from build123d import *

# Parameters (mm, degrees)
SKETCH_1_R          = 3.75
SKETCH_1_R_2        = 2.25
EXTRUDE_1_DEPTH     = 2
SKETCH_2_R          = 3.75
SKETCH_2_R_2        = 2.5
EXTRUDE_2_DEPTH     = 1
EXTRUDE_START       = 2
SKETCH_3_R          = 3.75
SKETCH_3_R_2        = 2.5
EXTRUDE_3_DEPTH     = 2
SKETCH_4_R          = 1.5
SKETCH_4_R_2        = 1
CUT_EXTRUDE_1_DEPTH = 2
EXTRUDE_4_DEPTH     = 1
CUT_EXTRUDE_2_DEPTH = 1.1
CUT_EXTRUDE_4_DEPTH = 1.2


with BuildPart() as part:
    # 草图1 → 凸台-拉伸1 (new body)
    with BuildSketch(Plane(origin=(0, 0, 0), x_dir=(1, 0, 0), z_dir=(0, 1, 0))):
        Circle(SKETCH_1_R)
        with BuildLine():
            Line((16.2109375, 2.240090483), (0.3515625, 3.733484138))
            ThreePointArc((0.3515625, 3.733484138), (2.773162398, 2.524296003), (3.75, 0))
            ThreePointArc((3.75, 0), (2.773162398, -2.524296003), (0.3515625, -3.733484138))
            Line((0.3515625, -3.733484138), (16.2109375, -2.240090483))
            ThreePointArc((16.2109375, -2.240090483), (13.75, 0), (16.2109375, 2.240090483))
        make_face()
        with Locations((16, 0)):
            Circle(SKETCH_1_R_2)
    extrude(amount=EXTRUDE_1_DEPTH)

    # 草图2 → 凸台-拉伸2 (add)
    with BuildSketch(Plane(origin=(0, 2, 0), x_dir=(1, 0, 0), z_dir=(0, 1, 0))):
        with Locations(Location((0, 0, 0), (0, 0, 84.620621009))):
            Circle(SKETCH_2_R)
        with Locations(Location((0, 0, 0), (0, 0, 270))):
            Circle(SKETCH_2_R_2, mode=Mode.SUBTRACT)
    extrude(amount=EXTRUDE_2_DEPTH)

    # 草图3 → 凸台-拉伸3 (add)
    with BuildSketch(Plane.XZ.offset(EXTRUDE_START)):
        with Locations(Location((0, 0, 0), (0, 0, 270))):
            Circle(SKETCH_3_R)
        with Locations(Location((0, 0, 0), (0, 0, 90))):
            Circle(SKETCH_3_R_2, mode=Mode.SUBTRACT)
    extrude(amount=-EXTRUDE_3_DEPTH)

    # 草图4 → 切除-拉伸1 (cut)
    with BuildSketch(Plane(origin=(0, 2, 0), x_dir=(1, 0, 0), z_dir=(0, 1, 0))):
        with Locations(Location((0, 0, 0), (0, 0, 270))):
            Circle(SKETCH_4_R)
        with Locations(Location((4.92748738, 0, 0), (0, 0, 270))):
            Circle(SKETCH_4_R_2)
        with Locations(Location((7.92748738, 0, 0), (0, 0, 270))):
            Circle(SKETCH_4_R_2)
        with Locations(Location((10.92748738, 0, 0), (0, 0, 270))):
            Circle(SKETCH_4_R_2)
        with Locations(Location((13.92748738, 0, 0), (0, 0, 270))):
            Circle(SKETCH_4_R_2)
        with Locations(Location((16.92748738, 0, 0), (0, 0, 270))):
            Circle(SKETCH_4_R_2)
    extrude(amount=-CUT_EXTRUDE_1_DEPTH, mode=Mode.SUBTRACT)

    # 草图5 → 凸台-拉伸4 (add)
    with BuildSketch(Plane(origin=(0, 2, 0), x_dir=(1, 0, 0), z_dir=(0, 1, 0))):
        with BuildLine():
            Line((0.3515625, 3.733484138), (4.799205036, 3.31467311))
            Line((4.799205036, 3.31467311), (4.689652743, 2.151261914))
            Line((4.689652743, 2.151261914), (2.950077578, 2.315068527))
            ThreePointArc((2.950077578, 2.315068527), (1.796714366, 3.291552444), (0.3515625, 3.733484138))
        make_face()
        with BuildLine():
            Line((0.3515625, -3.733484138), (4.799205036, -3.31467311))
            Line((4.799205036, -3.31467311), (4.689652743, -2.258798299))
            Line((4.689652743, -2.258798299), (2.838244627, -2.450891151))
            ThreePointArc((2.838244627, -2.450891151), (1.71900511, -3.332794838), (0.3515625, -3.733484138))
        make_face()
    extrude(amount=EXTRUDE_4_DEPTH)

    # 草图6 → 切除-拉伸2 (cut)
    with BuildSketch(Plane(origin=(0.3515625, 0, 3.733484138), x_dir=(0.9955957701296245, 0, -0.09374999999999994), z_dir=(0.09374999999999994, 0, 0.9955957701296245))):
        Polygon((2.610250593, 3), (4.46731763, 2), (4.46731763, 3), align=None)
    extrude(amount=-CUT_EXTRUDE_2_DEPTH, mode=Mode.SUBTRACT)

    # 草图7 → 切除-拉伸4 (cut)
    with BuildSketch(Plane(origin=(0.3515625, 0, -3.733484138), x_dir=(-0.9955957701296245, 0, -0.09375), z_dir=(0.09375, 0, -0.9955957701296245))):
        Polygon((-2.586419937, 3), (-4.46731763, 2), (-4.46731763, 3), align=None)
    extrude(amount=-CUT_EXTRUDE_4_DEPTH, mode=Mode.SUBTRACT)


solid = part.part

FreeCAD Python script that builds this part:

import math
import FreeCAD as App
import Part
import Sketcher

V = App.Vector

doc = App.newDocument("Part")
body = doc.addObject("PartDesign::Body", "Body")

sketch1 = doc.addObject("Sketcher::SketchObject", "Sketch")
body.addObject(sketch1)
sketch1.AttachmentSupport = (doc.XZ_Plane, [""])
sketch1.MapMode = "FlatFace"
sketch1.addGeometry([
    Part.ArcOfCircle(Part.Circle(V(0, 0, 0), V(0, 0, 1), 3.8), math.radians(85), math.radians(275)),
    Part.LineSegment(V(0.4, 3.7, 0), V(16.2, 2.2, 0)),
    Part.ArcOfCircle(Part.Circle(V(16, 0, 0), V(0, 0, 1), 2.2), math.radians(-85), math.radians(85)),
    Part.LineSegment(V(16.2, -2.2, 0), V(0.4, -3.7, 0)),
], False)
sketch1.addConstraint([
    Sketcher.Constraint("Tangent", 0, 1, 1, 1),
    Sketcher.Constraint("Tangent", 1, 2, 2, 2),
    Sketcher.Constraint("Tangent", 2, 1, 3, 1),
    Sketcher.Constraint("Tangent", 3, 2, 0, 2),
    Sketcher.Constraint("Coincident", 0, 3, -1, 1),
    Sketcher.Constraint("PointOnObject", 2, 3, -1),
    Sketcher.Constraint("Radius", 0, 3.75),
    Sketcher.Constraint("Radius", 2, 2.25),
    Sketcher.Constraint("DistanceX", -1, 1, 2, 3, 16.0),
])
pad1 = doc.addObject("PartDesign::Pad", "Pad")
body.addObject(pad1)
pad1.Profile = sketch1
pad1.Length = 2
pad1.Reversed = True

sketch2 = doc.addObject("Sketcher::SketchObject", "Sketch001")
body.addObject(sketch2)
sketch2.AttachmentSupport = (doc.XZ_Plane, [""])
sketch2.MapMode = "FlatFace"
sketch2.AttachmentOffset = App.Placement(V(0, 0, -2), App.Rotation())
sketch2.addGeometry([
    Part.Circle(V(0, 0, 0), V(0, 0, 1), 3.8),
    Part.Circle(V(0, 0, 0), V(0, 0, 1), 2.5),
], False)
sketch2.addConstraint([
    Sketcher.Constraint("Coincident", 0, 3, -1, 1),
    Sketcher.Constraint("Coincident", 1, 3, -1, 1),
    Sketcher.Constraint("Diameter", 1, 5.0),
    Sketcher.Constraint("Diameter", 0, 7.5),
])
pad2 = doc.addObject("PartDesign::Pad", "Pad001")
body.addObject(pad2)
pad2.Profile = sketch2
pad2.Length = 1
pad2.Reversed = True

sketch3 = doc.addObject("Sketcher::SketchObject", "Sketch002")
body.addObject(sketch3)
sketch3.AttachmentSupport = (doc.XZ_Plane, [""])
sketch3.MapMode = "FlatFace"
sketch3.AttachmentOffset = App.Placement(V(0, 0, 2), App.Rotation())
sketch3.addGeometry([
    Part.Circle(V(0, 0, 0), V(0, 0, 1), 3.8),
    Part.Circle(V(0, 0, 0), V(0, 0, 1), 2.5),
], False)
sketch3.addConstraint([
    Sketcher.Constraint("Coincident", 0, 3, -1, 1),
    Sketcher.Constraint("Coincident", 1, 3, -1, 1),
    Sketcher.Constraint("Diameter", 1, 5.0),
    Sketcher.Constraint("Diameter", 0, 7.5),
])
pad3 = doc.addObject("PartDesign::Pad", "Pad002")
body.addObject(pad3)
pad3.Profile = sketch3
pad3.Length = 2
pad3.Reversed = True

sketch4 = doc.addObject("Sketcher::SketchObject", "Sketch003")
body.addObject(sketch4)
sketch4.AttachmentSupport = (doc.XZ_Plane, [""])
sketch4.MapMode = "FlatFace"
sketch4.AttachmentOffset = App.Placement(V(0, 0, -2), App.Rotation())
sketch4.addGeometry([
    Part.Circle(V(0, 0, 0), V(0, 0, 1), 1.5),
    Part.Circle(V(4.9, 0, 0), V(0, 0, 1), 1),
    Part.Circle(V(7.9, 0, 0), V(0, 0, 1), 1),
    Part.Circle(V(10.9, 0, 0), V(0, 0, 1), 1),
    Part.Circle(V(13.9, 0, 0), V(0, 0, 1), 1),
    Part.Circle(V(16.9, 0, 0), V(0, 0, 1), 1),
], False)
sketch4.addConstraint([
    Sketcher.Constraint("Coincident", 0, 3, -1, 1),
    Sketcher.Constraint("Equal", 1, 2),
    Sketcher.Constraint("Equal", 2, 3),
    Sketcher.Constraint("Equal", 3, 4),
    Sketcher.Constraint("Equal", 4, 5),
    Sketcher.Constraint("PointOnObject", 1, 3, -1),
    Sketcher.Constraint("PointOnObject", 2, 3, -1),
    Sketcher.Constraint("PointOnObject", 3, 3, -1),
    Sketcher.Constraint("PointOnObject", 4, 3, -1),
    Sketcher.Constraint("PointOnObject", 5, 3, -1),
    Sketcher.Constraint("Diameter", 0, 3.0),
    Sketcher.Constraint("Diameter", 1, 2.0),
    Sketcher.Constraint("DistanceX", 1, 3, 2, 3, 3.0),
    Sketcher.Constraint("DistanceX", 2, 3, 3, 3, 3.0),
    Sketcher.Constraint("DistanceX", 3, 3, 4, 3, 3.0),
    Sketcher.Constraint("DistanceX", 4, 3, 5, 3, 3.0),
    Sketcher.Constraint("DistanceX", -1, 1, 1, 3, 4.927487),
])
pocket1 = doc.addObject("PartDesign::Pocket", "Pocket")
body.addObject(pocket1)
pocket1.Profile = sketch4
pocket1.Length = 2
pocket1.Reversed = True

sketch5 = doc.addObject("Sketcher::SketchObject", "Sketch004")
body.addObject(sketch5)
sketch5.AttachmentSupport = (doc.XZ_Plane, [""])
sketch5.MapMode = "FlatFace"
sketch5.AttachmentOffset = App.Placement(V(0, 0, -2), App.Rotation())
sketch5.addGeometry([
    Part.LineSegment(V(4.8, -3.3, 0), V(0.4, -3.7, 0)),
    Part.ArcOfCircle(Part.Circle(V(0, 0, 0), V(0, 0, 1), 3.7), math.radians(-85), math.radians(-38)),
    Part.LineSegment(V(3, -2.3, 0), V(4.7, -2.2, 0)),
    Part.LineSegment(V(4.7, -2.2, 0), V(4.8, -3.3, 0)),
    Part.LineSegment(V(0.4, 3.7, 0), V(4.8, 3.3, 0)),
    Part.LineSegment(V(4.8, 3.3, 0), V(4.7, 2.3, 0)),
    Part.LineSegment(V(4.7, 2.3, 0), V(2.8, 2.5, 0)),
    Part.ArcOfCircle(Part.Circle(V(0, 0, 0), V(0, 0, 1), 3.7), math.radians(41), math.radians(85)),
], False)
sketch5.addConstraint([
    Sketcher.Constraint("Tangent", 0, 2, 1, 1),
    Sketcher.Constraint("Coincident", 1, 2, 2, 1),
    Sketcher.Constraint("Coincident", 2, 2, 3, 1),
    Sketcher.Constraint("Coincident", 3, 2, 0, 1),
    Sketcher.Constraint("Coincident", 4, 2, 5, 1),
    Sketcher.Constraint("Coincident", 5, 2, 6, 1),
    Sketcher.Constraint("Coincident", 6, 2, 7, 1),
    Sketcher.Constraint("Tangent", 7, 2, 4, 1),
    Sketcher.Constraint("Coincident", 1, 3, -1, 1),
    Sketcher.Constraint("Coincident", 7, 3, -1, 1),
    Sketcher.Constraint("Equal", 1, 7),
    Sketcher.Constraint("Symmetric", 3, 2, 4, 2, -1),
    Sketcher.Constraint("Parallel", 0, 2),
    Sketcher.Constraint("Perpendicular", 2, 3),
    Sketcher.Constraint("Perpendicular", 5, 6),
    Sketcher.Constraint("Vertical", 2, 2, 5, 2),
    Sketcher.Constraint("Radius", 1, 3.75),
    Sketcher.Constraint("DistanceY", -1, 1, 5, 2, 2.258798),
    Sketcher.Constraint("Distance", 2, 1.747271),
    Sketcher.Constraint("DistanceY", 1, 2, -1, 1, 2.315069),
    Sketcher.Constraint("DistanceY", 2, 2, -1, 1, 2.151262),
])
pad4 = doc.addObject("PartDesign::Pad", "Pad003")
body.addObject(pad4)
pad4.Profile = sketch5
pad4.Length = 1
pad4.Reversed = True

sketch6 = doc.addObject("Sketcher::SketchObject", "Sketch005")
body.addObject(sketch6)
sketch6.Placement = App.Placement(V(0.351562, 0, 3.733484), App.Rotation(V(0.99559577, 0, -0.09375), V(0, 1, 0), V(0.09375, 0, 0.99559577), "ZXY"))
sketch6.addGeometry([
    Part.LineSegment(V(2.6, 3, 0), V(4.5, 2, 0)),
    Part.LineSegment(V(4.5, 2, 0), V(4.5, 3, 0)),
    Part.LineSegment(V(4.5, 3, 0), V(2.6, 3, 0)),
], False)
sketch6.addConstraint([
    Sketcher.Constraint("Coincident", 0, 2, 1, 1),
    Sketcher.Constraint("Coincident", 1, 2, 2, 1),
    Sketcher.Constraint("Coincident", 2, 2, 0, 1),
    Sketcher.Constraint("Vertical", 1),
    Sketcher.Constraint("Horizontal", 2),
    Sketcher.Constraint("DistanceY", 1, 1, 1, 2, 1.0),
    Sketcher.Constraint("DistanceY", -1, 1, 0, 2, 2.0),
    Sketcher.Constraint("DistanceX", 2, 2, 2, 1, 1.857067),
    Sketcher.Constraint("DistanceX", -1, 1, 2, 2, 2.610251),
])
pocket2 = doc.addObject("PartDesign::Pocket", "Pocket001")
body.addObject(pocket2)
pocket2.Profile = sketch6
pocket2.Length = 1.1

sketch7 = doc.addObject("Sketcher::SketchObject", "Sketch006")
body.addObject(sketch7)
sketch7.Placement = App.Placement(V(0.351562, 0, -3.733484), App.Rotation(V(-0.99559577, 0, -0.09375), V(0, 1, 0), V(0.09375, 0, -0.99559577), "ZXY"))
sketch7.addGeometry([
    Part.LineSegment(V(-4.5, 2, 0), V(-2.6, 3, 0)),
    Part.LineSegment(V(-2.6, 3, 0), V(-4.5, 3, 0)),
    Part.LineSegment(V(-4.5, 3, 0), V(-4.5, 2, 0)),
], False)
sketch7.addConstraint([
    Sketcher.Constraint("Coincident", 0, 2, 1, 1),
    Sketcher.Constraint("Coincident", 1, 2, 2, 1),
    Sketcher.Constraint("Coincident", 2, 2, 0, 1),
    Sketcher.Constraint("Horizontal", 1),
    Sketcher.Constraint("Vertical", 2),
    Sketcher.Constraint("DistanceY", 2, 2, 2, 1, 1.0),
    Sketcher.Constraint("DistanceY", -1, 1, 0, 2, 3.0),
    Sketcher.Constraint("DistanceX", 1, 2, 1, 1, 1.880898),
    Sketcher.Constraint("DistanceX", 0, 2, -1, 1, 2.58642),
])
pocket3 = doc.addObject("PartDesign::Pocket", "Pocket002")
body.addObject(pocket3)
pocket3.Profile = sketch7
pocket3.Length = 1.2

doc.recompute()
